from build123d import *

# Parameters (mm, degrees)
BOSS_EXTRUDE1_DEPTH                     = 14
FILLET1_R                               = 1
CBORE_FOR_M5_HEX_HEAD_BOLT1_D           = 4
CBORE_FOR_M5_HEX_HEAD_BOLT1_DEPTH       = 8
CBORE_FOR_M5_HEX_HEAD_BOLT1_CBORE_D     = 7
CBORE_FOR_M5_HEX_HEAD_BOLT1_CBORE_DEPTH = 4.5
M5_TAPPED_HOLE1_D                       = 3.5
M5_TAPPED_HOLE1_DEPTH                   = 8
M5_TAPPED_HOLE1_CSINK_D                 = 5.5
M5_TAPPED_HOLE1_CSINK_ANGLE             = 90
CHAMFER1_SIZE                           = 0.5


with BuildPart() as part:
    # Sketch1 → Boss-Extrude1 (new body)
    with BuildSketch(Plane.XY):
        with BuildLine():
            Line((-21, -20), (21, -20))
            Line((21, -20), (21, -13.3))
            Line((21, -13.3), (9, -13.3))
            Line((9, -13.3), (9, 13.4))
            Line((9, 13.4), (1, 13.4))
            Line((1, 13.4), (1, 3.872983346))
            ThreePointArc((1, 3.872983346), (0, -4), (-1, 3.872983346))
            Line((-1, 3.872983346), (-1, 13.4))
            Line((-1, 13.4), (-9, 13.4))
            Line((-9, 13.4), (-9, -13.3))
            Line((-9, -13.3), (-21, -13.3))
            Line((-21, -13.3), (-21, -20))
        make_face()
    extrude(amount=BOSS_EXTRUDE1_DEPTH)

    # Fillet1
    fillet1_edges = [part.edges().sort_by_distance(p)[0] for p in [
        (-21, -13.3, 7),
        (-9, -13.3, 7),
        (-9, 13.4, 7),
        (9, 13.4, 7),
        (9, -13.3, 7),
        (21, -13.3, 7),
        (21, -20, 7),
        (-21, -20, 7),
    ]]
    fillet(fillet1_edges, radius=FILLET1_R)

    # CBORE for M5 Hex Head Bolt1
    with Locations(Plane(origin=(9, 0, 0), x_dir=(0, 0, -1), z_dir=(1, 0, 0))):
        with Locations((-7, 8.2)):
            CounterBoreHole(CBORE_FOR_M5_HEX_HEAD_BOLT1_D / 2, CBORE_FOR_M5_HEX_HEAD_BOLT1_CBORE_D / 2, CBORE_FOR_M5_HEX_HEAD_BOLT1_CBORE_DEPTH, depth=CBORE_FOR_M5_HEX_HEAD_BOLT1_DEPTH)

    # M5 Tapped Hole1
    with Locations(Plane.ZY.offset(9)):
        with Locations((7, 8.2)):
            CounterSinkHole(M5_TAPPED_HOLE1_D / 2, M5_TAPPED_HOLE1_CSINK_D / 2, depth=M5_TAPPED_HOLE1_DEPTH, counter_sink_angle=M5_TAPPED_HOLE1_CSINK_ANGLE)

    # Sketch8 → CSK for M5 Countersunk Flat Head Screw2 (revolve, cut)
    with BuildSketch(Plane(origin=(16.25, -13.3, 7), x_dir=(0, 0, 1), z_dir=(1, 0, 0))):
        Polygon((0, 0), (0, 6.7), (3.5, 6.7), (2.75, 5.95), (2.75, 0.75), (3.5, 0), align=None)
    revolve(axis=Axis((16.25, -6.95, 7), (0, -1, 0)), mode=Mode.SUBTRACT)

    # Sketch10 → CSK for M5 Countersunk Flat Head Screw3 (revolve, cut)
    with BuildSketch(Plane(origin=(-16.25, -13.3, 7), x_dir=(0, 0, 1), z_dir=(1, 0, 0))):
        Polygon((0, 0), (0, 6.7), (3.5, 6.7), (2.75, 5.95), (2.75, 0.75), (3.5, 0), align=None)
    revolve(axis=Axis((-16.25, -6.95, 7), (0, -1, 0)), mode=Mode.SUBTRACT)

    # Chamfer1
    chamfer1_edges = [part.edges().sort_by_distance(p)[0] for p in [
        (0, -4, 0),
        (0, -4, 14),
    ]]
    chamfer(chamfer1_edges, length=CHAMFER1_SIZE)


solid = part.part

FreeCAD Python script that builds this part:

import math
import FreeCAD as App
import Part
import Sketcher
from FreeCAD import Vector


def edges_at(feature, points):
    """Names of the edges that pass closest to the given points."""
    edges = feature.Shape.Edges
    near = lambda p: min(range(len(edges)), key=lambda i: edges[i].distToShape(Part.Vertex(*p))[0])
    return sorted({f"Edge{near(p) + 1}" for p in points})


def add_polygon(sketch, points):
    """Adds a closed chain of lines whose ends are joined by coincident constraints."""
    first, n = sketch.GeometryCount, len(points)
    for a, b in zip(points, points[1:] + points[:1]):
        sketch.addGeometry(Part.LineSegment(App.Vector(*a, 0), App.Vector(*b, 0)), False)
    for i in range(n):
        sketch.addConstraint(Sketcher.Constraint("Coincident", first + i, 2, first + (i + 1) % n, 1))

doc = App.newDocument("Part")
params = doc.addObject("Spreadsheet::Sheet", "Params")
for row, (alias, value) in enumerate([
    ("sketch1_radius", "4 mm"),
    ("sketch1_width", "42 mm"),
    ("sketch1_width2", "12 mm"),
    ("sketch1_width3", "8 mm"),
    ("sketch1_height", "6.7 mm"),
    ("pad1_length", "14 mm"),
    ("fillet_radius", "1 mm"),
    ("sketch2_diameter", "4 mm"),
    ("hole_diameter", "4 mm"),
    ("hole_depth", "8 mm"),
    ("hole_cbore_diameter", "7 mm"),
    ("hole_cbore_depth", "4.5 mm"),
    ("sketch3_diameter", "3.5 mm"),
    ("hole2_diameter", "3.5 mm"),
    ("hole2_depth", "8 mm"),
    ("hole2_csink_diameter", "5.5 mm"),
    ("sketch4_width", "6.7 mm"),
    ("sketch4_width2", "5.2 mm"),
    ("sketch4_height", "3.5 mm"),
    ("groove_angle", "360 deg"),
    ("sketch5_width", "6.7 mm"),
    ("sketch5_width2", "5.2 mm"),
    ("sketch5_height", "3.5 mm"),
    ("groove2_angle", "360 deg"),
    ("chamfer_size", "0.5 mm"),
], start=1):
    params.set(f"A{row}", alias)
    params.set(f"B{row}", "=" + value)
    params.setAlias(f"B{row}", alias)

body = doc.addObject("PartDesign::Body", "Body")

sketch1 = body.newObject("Sketcher::SketchObject", "Sketch")
sketch1.AttachmentSupport = (doc.getObject("XY_Plane"), [""])
sketch1.MapMode = "FlatFace"
sketch1.addGeometry(Part.LineSegment(Vector(-21, -20, 0), Vector(21, -20, 0)), False)
sketch1.addGeometry(Part.LineSegment(Vector(21, -20, 0), Vector(21, -13.3, 0)), False)
sketch1.addGeometry(Part.LineSegment(Vector(21, -13.3, 0), Vector(9, -13.3, 0)), False)
sketch1.addGeometry(Part.LineSegment(Vector(9, -13.3, 0), Vector(9, 13.4, 0)), False)
sketch1.addGeometry(Part.LineSegment(Vector(9, 13.4, 0), Vector(1, 13.4, 0)), False)
sketch1.addGeometry(Part.LineSegment(Vector(1, 13.4, 0), Vector(1, 3.9, 0)), False)
sketch1.addGeometry(Part.ArcOfCircle(Part.Circle(Vector(0, 0, 0), Vector(0, 0, 1), 4), math.radians(104), math.radians(436)), False)
sketch1.addGeometry(Part.LineSegment(Vector(-1, 3.9, 0), Vector(-1, 13.4, 0)), False)
sketch1.addGeometry(Part.LineSegment(Vector(-1, 13.4, 0), Vector(-9, 13.4, 0)), False)
sketch1.addGeometry(Part.LineSegment(Vector(-9, 13.4, 0), Vector(-9, -13.3, 0)), False)
sketch1.addGeometry(Part.LineSegment(Vector(-9, -13.3, 0), Vector(-21, -13.3, 0)), False)
sketch1.addGeometry(Part.LineSegment(Vector(-21, -13.3, 0), Vector(-21, -20, 0)), False)
sketch1.addConstraint(Sketcher.Constraint("Coincident", 0, 2, 1, 1))
sketch1.addConstraint(Sketcher.Constraint("Coincident", 1, 2, 2, 1))
sketch1.addConstraint(Sketcher.Constraint("Coincident", 2, 2, 3, 1))
sketch1.addConstraint(Sketcher.Constraint("Coincident", 3, 2, 4, 1))
sketch1.addConstraint(Sketcher.Constraint("Coincident", 4, 2, 5, 1))
sketch1.addConstraint(Sketcher.Constraint("Coincident", 5, 2, 6, 2))
sketch1.addConstraint(Sketcher.Constraint("Coincident", 6, 1, 7, 1))
sketch1.addConstraint(Sketcher.Constraint("Coincident", 7, 2, 8, 1))
sketch1.addConstraint(Sketcher.Constraint("Coincident", 8, 2, 9, 1))
sketch1.addConstraint(Sketcher.Constraint("Coincident", 9, 2, 10, 1))
sketch1.addConstraint(Sketcher.Constraint("Coincident", 10, 2, 11, 1))
sketch1.addConstraint(Sketcher.Constraint("Coincident", 11, 2, 0, 1))
sketch1.addConstraint(Sketcher.Constraint("Horizontal", 0))
sketch1.addConstraint(Sketcher.Constraint("Vertical", 1))
sketch1.addConstraint(Sketcher.Constraint("Horizontal", 2))
sketch1.addConstraint(Sketcher.Constraint("Vertical", 3))
sketch1.addConstraint(Sketcher.Constraint("Horizontal", 4))
sketch1.addConstraint(Sketcher.Constraint("Vertical", 5))
sketch1.addConstraint(Sketcher.Constraint("Vertical", 7))
sketch1.addConstraint(Sketcher.Constraint("Horizontal", 8))
sketch1.addConstraint(Sketcher.Constraint("Vertical", 9))
sketch1.addConstraint(Sketcher.Constraint("Horizontal", 10))
sketch1.addConstraint(Sketcher.Constraint("Vertical", 11))
sketch1.addConstraint(Sketcher.Constraint("Coincident", 6, 3, -1, 1))
sketch1.addConstraint(Sketcher.Constraint("Symmetric", 4, 2, 7, 2, -2))
sketch1.addConstraint(Sketcher.Constraint("Symmetric", 2, 2, 9, 2, -2))
sketch1.addConstraint(Sketcher.Constraint("Equal", 2, 10))
sketch1.addConstraint(Sketcher.Constraint("Radius", 6, 4.0))
sketch1.addConstraint(Sketcher.Constraint("DistanceX", 0, 1, 0, 2, 42.0))
sketch1.addConstraint(Sketcher.Constraint("DistanceX", 2, 2, 2, 1, 12.0))
sketch1.addConstraint(Sketcher.Constraint("DistanceX", 4, 2, 4, 1, 8.0))
sketch1.addConstraint(Sketcher.Constraint("DistanceY", 1, 1, 1, 2, 6.7))
sketch1.addConstraint(Sketcher.Constraint("DistanceY", 3, 1, 3, 2, 26.7))
sketch1.addConstraint(Sketcher.Constraint("DistanceY", 0, 2, -1, 1, 20.0))
sketch1.setExpression("Constraints[27]", "Params.sketch1_radius")
sketch1.setExpression("Constraints[28]", "Params.sketch1_width")
sketch1.setExpression("Constraints[29]", "Params.sketch1_width2")
sketch1.setExpression("Constraints[30]", "Params.sketch1_width3")
sketch1.setExpression("Constraints[31]", "Params.sketch1_height")
pad1 = body.newObject("PartDesign::Pad", "Pad")
pad1.Profile = sketch1
pad1.setExpression("Length", "Params.pad1_length")
doc.recompute()

fillet = body.newObject("PartDesign::Fillet", "Fillet")
fillet.Base = (pad1, edges_at(pad1, [
    (-21, -13.3, 7),
    (-9, -13.3, 7),
    (-9, 13.4, 7),
    (9, 13.4, 7),
    (9, -13.3, 7),
    (21, -13.3, 7),
    (21, -20, 7),
    (-21, -20, 7),
]))
fillet.setExpression("Radius", "Params.fillet_radius")

sketch2 = body.newObject("Sketcher::SketchObject", "Sketch001")
sketch2.AttachmentSupport = (doc.getObject("YZ_Plane"), [""])
sketch2.MapMode = "FlatFace"
sketch2.AttachmentOffset = App.Placement(Vector(0, 0, 9), App.Rotation())
sketch2.addGeometry(Part.Circle(Vector(8.2, 7, 0), Vector(0, 0, 1), 2), False)
sketch2.addConstraint(Sketcher.Constraint("Diameter", 0, 4.0))
sketch2.addConstraint(Sketcher.Constraint("DistanceY", -1, 1, 0, 3, 7.0))
sketch2.addConstraint(Sketcher.Constraint("DistanceX", -1, 1, 0, 3, 8.2))
sketch2.setExpression("Constraints[0]", "Params.sketch2_diameter")
doc.recompute()
hole = body.newObject("PartDesign::Hole", "Hole")
hole.Profile = sketch2
hole.ThreadType = "None"
hole.setExpression("Diameter", "Params.hole_diameter")
hole.DepthType = "Dimension"
hole.setExpression("Depth", "Params.hole_depth")
hole.DrillPoint = "Flat"
hole.HoleCutType = "Counterbore"
hole.setExpression("HoleCutDiameter", "Params.hole_cbore_diameter")
hole.setExpression("HoleCutDepth", "Params.hole_cbore_depth")

sketch3 = body.newObject("Sketcher::SketchObject", "Sketch002")
sketch3.AttachmentSupport = (doc.getObject("YZ_Plane"), [""])
sketch3.MapMode = "FlatFace"
sketch3.AttachmentOffset = App.Placement(Vector(0, 0, -9), App.Rotation())
sketch3.addGeometry(Part.Circle(Vector(8.2, 7, 0), Vector(0, 0, 1), 1.8), False)
sketch3.addConstraint(Sketcher.Constraint("Diameter", 0, 3.5))
sketch3.addConstraint(Sketcher.Constraint("DistanceY", -1, 1, 0, 3, 7.0))
sketch3.addConstraint(Sketcher.Constraint("DistanceX", -1, 1, 0, 3, 8.2))
sketch3.setExpression("Constraints[0]", "Params.sketch3_diameter")
doc.recompute()
hole2 = body.newObject("PartDesign::Hole", "Hole001")
hole2.Profile = sketch3
hole2.ThreadType = "None"
hole2.setExpression("Diameter", "Params.hole2_diameter")
hole2.DepthType = "Dimension"
hole2.setExpression("Depth", "Params.hole2_depth")
hole2.DrillPoint = "Flat"
hole2.HoleCutType = "Countersink"
hole2.setExpression("HoleCutDiameter", "Params.hole2_csink_diameter")
hole2.HoleCutCountersinkAngle = 90
hole2.Reversed = True

sketch4 = body.newObject("Sketcher::SketchObject", "Sketch003")
sketch4.AttachmentSupport = (doc.getObject("YZ_Plane"), [""])
sketch4.MapMode = "FlatFace"
sketch4.AttachmentOffset = App.Placement(Vector(0, 0, 16.25), App.Rotation())
add_polygon(sketch4, [(-20, 7), (-13.3, 7), (-13.3, 10.5), (-14.1, 9.8), (-19.2, 9.8), (-20, 10.5)])
sketch4.addGeometry(Part.LineSegment(Vector(-13.3, 7, 0), Vector(-20, 7, 0)), True)
sketch4.addConstraint(Sketcher.Constraint("Horizontal", 0))
sketch4.addConstraint(Sketcher.Constraint("Vertical", 1))
sketch4.addConstraint(Sketcher.Constraint("Horizontal", 3))
sketch4.addConstraint(Sketcher.Constraint("Vertical", 5))
sketch4.addConstraint(Sketcher.Constraint("Horizontal", 6))
sketch4.addConstraint(Sketcher.Constraint("Coincident", 6, 1, 0, 2))
sketch4.addConstraint(Sketcher.Constraint("Perpendicular", 2, 4))
sketch4.addConstraint(Sketcher.Constraint("Horizontal", 1, 2, 4, 2))
sketch4.addConstraint(Sketcher.Constraint("Vertical", 4, 2, 6, 2))
sketch4.addConstraint(Sketcher.Constraint("Equal", 2, 4))
sketch4.addConstraint(Sketcher.Constraint("DistanceX", 0, 1, 0, 2, 6.7))
sketch4.addConstraint(Sketcher.Constraint("DistanceX", 3, 2, 3, 1, 5.2))
sketch4.addConstraint(Sketcher.Constraint("DistanceY", 1, 1, 1, 2, 3.5))
sketch4.addConstraint(Sketcher.Constraint("DistanceY", -1, 1, 0, 2, 7.0))
sketch4.addConstraint(Sketcher.Constraint("DistanceX", 4, 2, -1, 1, 20.0))
sketch4.setExpression("Constraints[16]", "Params.sketch4_width")
sketch4.setExpression("Constraints[17]", "Params.sketch4_width2")
sketch4.setExpression("Constraints[18]", "Params.sketch4_height")
groove = body.newObject("PartDesign::Groove", "Groove")
groove.Profile = sketch4
groove.ReferenceAxis = (sketch4, ["Axis0"])
groove.setExpression("Angle", "Params.groove_angle")

sketch5 = body.newObject("Sketcher::SketchObject", "Sketch004")
sketch5.AttachmentSupport = (doc.getObject("YZ_Plane"), [""])
sketch5.MapMode = "FlatFace"
sketch5.AttachmentOffset = App.Placement(Vector(0, 0, -16.25), App.Rotation())
add_polygon(sketch5, [(-20, 7), (-13.3, 7), (-13.3, 10.5), (-14.1, 9.8), (-19.2, 9.8), (-20, 10.5)])
sketch5.addGeometry(Part.LineSegment(Vector(-13.3, 7, 0), Vector(-20, 7, 0)), True)
sketch5.addConstraint(Sketcher.Constraint("Horizontal", 0))
sketch5.addConstraint(Sketcher.Constraint("Vertical", 1))
sketch5.addConstraint(Sketcher.Constraint("Horizontal", 3))
sketch5.addConstraint(Sketcher.Constraint("Vertical", 5))
sketch5.addConstraint(Sketcher.Constraint("Horizontal", 6))
sketch5.addConstraint(Sketcher.Constraint("Coincident", 6, 1, 0, 2))
sketch5.addConstraint(Sketcher.Constraint("Perpendicular", 2, 4))
sketch5.addConstraint(Sketcher.Constraint("Horizontal", 1, 2, 4, 2))
sketch5.addConstraint(Sketcher.Constraint("Vertical", 4, 2, 6, 2))
sketch5.addConstraint(Sketcher.Constraint("Equal", 2, 4))
sketch5.addConstraint(Sketcher.Constraint("DistanceX", 0, 1, 0, 2, 6.7))
sketch5.addConstraint(Sketcher.Constraint("DistanceX", 3, 2, 3, 1, 5.2))
sketch5.addConstraint(Sketcher.Constraint("DistanceY", 1, 1, 1, 2, 3.5))
sketch5.addConstraint(Sketcher.Constraint("DistanceY", -1, 1, 0, 2, 7.0))
sketch5.addConstraint(Sketcher.Constraint("DistanceX", 4, 2, -1, 1, 20.0))
sketch5.setExpression("Constraints[16]", "Params.sketch5_width")
sketch5.setExpression("Constraints[17]", "Params.sketch5_width2")
sketch5.setExpression("Constraints[18]", "Params.sketch5_height")
groove2 = body.newObject("PartDesign::Groove", "Groove001")
groove2.Profile = sketch5
groove2.ReferenceAxis = (sketch5, ["Axis0"])
groove2.setExpression("Angle", "Params.groove2_angle")
doc.recompute()

chamfer = body.newObject("PartDesign::Chamfer", "Chamfer")
chamfer.Base = (groove2, edges_at(groove2, [(0, -4, 0), (0, -4, 14)]))
chamfer.setExpression("Size", "Params.chamfer_size")

doc.recompute()
